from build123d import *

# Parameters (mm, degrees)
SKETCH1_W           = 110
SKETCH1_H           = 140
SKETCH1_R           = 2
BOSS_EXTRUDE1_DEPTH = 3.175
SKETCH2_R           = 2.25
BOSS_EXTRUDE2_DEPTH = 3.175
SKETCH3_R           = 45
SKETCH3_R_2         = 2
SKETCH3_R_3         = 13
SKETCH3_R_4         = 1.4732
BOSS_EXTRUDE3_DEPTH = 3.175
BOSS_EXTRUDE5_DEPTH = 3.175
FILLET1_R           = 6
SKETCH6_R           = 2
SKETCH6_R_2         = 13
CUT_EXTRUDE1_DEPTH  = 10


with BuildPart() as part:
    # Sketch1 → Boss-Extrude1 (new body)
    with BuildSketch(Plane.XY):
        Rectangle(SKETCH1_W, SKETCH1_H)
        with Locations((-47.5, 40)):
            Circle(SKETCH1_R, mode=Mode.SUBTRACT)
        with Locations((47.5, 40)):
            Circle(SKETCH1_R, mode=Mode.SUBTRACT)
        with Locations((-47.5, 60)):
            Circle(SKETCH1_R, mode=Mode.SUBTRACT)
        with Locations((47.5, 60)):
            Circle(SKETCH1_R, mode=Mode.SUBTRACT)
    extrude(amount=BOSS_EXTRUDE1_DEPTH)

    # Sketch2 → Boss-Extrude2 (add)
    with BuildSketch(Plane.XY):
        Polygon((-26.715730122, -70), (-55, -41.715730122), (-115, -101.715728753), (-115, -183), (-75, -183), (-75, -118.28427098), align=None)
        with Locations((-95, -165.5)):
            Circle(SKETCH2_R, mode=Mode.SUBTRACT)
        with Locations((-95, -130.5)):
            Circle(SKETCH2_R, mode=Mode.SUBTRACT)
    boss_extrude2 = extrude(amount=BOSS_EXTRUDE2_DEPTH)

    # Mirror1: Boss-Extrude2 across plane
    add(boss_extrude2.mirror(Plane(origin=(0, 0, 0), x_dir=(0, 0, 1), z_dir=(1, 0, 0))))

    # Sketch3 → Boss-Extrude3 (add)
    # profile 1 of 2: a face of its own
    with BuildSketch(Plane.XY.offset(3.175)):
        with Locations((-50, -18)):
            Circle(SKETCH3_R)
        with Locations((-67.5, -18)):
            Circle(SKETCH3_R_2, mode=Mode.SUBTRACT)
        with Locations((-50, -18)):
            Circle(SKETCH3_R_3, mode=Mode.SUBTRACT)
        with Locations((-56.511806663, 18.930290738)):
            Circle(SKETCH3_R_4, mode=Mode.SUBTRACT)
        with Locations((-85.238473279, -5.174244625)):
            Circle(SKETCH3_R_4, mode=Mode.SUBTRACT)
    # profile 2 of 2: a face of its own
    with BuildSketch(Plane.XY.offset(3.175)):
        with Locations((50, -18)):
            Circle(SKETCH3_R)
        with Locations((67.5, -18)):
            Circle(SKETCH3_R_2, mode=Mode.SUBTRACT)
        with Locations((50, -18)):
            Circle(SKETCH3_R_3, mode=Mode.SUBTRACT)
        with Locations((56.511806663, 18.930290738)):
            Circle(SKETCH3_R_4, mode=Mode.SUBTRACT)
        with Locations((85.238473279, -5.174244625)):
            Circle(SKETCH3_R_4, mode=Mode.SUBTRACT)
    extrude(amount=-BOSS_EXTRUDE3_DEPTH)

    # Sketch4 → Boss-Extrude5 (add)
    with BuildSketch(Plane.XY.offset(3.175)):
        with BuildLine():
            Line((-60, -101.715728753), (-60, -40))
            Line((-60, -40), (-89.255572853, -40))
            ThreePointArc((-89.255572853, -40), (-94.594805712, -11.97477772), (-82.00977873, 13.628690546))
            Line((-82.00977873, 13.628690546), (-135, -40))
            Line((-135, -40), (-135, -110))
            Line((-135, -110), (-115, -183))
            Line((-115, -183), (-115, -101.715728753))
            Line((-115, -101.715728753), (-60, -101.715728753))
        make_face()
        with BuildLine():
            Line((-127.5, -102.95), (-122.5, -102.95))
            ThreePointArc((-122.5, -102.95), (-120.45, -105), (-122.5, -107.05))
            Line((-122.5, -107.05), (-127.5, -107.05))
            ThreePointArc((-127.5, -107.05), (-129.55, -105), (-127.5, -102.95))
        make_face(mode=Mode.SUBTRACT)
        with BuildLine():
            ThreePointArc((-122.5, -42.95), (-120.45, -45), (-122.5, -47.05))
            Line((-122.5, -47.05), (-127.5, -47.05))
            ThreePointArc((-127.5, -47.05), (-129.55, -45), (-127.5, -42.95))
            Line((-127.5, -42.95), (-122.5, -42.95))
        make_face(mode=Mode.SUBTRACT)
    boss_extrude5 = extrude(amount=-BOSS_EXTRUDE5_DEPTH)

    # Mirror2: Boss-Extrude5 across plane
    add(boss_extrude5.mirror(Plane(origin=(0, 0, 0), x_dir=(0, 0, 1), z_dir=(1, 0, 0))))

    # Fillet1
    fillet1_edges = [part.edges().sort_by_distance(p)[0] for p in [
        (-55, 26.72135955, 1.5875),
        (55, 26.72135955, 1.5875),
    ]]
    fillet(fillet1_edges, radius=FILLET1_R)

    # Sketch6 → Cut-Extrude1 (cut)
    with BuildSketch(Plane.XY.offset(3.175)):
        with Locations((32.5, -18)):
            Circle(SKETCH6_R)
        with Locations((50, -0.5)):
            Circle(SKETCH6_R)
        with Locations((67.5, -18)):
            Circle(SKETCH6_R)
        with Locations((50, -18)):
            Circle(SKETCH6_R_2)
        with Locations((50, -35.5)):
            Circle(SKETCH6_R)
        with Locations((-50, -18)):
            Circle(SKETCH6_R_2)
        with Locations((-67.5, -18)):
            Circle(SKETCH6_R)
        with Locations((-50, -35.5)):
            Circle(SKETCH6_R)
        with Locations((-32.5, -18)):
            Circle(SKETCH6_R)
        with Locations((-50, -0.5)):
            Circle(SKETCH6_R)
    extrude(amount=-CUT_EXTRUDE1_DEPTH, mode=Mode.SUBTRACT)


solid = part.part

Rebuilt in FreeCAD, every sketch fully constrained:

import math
import FreeCAD as App
import Part
import Sketcher
Q = App.Units.Quantity


def edges_at(feature, points):
    """Names of the edges that pass closest to the given points."""
    edges = feature.Shape.Edges
    near = lambda p: min(range(len(edges)), key=lambda i: edges[i].distToShape(Part.Vertex(*p))[0])
    return sorted({f"Edge{near(p) + 1}" for p in points})


def add_polygon(sketch, points):
    """Adds a closed chain of lines whose ends are joined by coincident constraints."""
    first, n = sketch.GeometryCount, len(points)
    for a, b in zip(points, points[1:] + points[:1]):
        sketch.addGeometry(Part.LineSegment(App.Vector(*a, 0), App.Vector(*b, 0)), False)
    for i in range(n):
        sketch.addConstraint(Sketcher.Constraint("Coincident", first + i, 2, first + (i + 1) % n, 1))

doc = App.newDocument("Part")
body = doc.addObject("PartDesign::Body", "Body")

# Sketch on XY plane
sketch1 = body.newObject("Sketcher::SketchObject", "Sketch")
sketch1.AttachmentSupport = (doc.getObject("XY_Plane"), [""])
sketch1.MapMode = "FlatFace"
add_polygon(sketch1, [(-55, 70), (-55, -70), (55, -70), (55, 70)])  # lines 0-3
sketch1.addGeometry(Part.Circle(App.Vector(-47.5, 40, 0), App.Vector(0, 0, 1), 2), False)  # 4
sketch1.addGeometry(Part.Circle(App.Vector(47.5, 40, 0), App.Vector(0, 0, 1), 2), False)  # 5
sketch1.addGeometry(Part.Circle(App.Vector(-47.5, 60, 0), App.Vector(0, 0, 1), 2), False)  # 6
sketch1.addGeometry(Part.Circle(App.Vector(47.5, 60, 0), App.Vector(0, 0, 1), 2), False)  # 7
sketch1.addConstraint([
    Sketcher.Constraint("Vertical", 0),
    Sketcher.Constraint("Horizontal", 1),
    Sketcher.Constraint("Vertical", 2),
    Sketcher.Constraint("Horizontal", 3),
    Sketcher.Constraint("Equal", 4, 5),
    Sketcher.Constraint("Equal", 5, 6),
    Sketcher.Constraint("Equal", 6, 7),
    Sketcher.Constraint("Symmetric", 0, 2, 2, 2, -1, 1),
    Sketcher.Constraint("Symmetric", 4, 3, 5, 3, -2),
    Sketcher.Constraint("Symmetric", 6, 3, 7, 3, -2),
    Sketcher.Constraint("Vertical", 4, 3, 6, 3),
    Sketcher.Constraint("Diameter", 4, 4.0),
    Sketcher.Constraint("DistanceX", 1, 1, 1, 2, 110.0),
    Sketcher.Constraint("DistanceY", 0, 2, 0, 1, 140.0),
    Sketcher.Constraint("DistanceY", -1, 1, 4, 3, 40.0),
    Sketcher.Constraint("DistanceY", -1, 1, 6, 3, 60.0),
    Sketcher.Constraint("DistanceX", 4, 3, 5, 3, 95.0),
])
pad1 = body.newObject("PartDesign::Pad", "Pad")
pad1.Profile = sketch1
pad1.Length = 3.175

# Sketch on XY plane
sketch2 = body.newObject("Sketcher::SketchObject", "Sketch001")
sketch2.AttachmentSupport = (doc.getObject("XY_Plane"), [""])
sketch2.MapMode = "FlatFace"
add_polygon(sketch2, [(-26.7, -70), (-55, -41.7), (-115, -101.7), (-115, -183), (-75, -183), (-75, -118.3)])  # lines 0-5
sketch2.addGeometry(Part.Circle(App.Vector(-95, -165.5, 0), App.Vector(0, 0, 1), 2.2), False)  # 6
sketch2.addGeometry(Part.Circle(App.Vector(-95, -130.5, 0), App.Vector(0, 0, 1), 2.2), False)  # 7
sketch2.addConstraint([
    Sketcher.Constraint("Vertical", 2),
    Sketcher.Constraint("Horizontal", 3),
    Sketcher.Constraint("Vertical", 4),
    Sketcher.Constraint("Equal", 6, 7),
    Sketcher.Constraint("Perpendicular", 0, 1),
    Sketcher.Constraint("Parallel", 1, 5),
    Sketcher.Constraint("Vertical", 6, 3, 7, 3),
    Sketcher.Constraint("Diameter", 6, 4.5),
    Sketcher.Constraint("DistanceX", 3, 1, 3, 2, 40.0),
    Sketcher.Constraint("Angle", 0, Q("135 deg")),
    Sketcher.Constraint("Distance", 0, 39.999998),
    Sketcher.Constraint("DistanceX", 6, 3, -1, 1, 95.0),
    Sketcher.Constraint("DistanceX", 0, 2, -1, 1, 55.0),
    Sketcher.Constraint("DistanceX", 1, 2, -1, 1, 115.0),
    Sketcher.Constraint("DistanceY", 2, 2, -1, 1, 183.0),
    Sketcher.Constraint("DistanceY", 5, 2, -1, 1, 70.0),
    Sketcher.Constraint("DistanceY", 6, 3, 7, 3, 35.0),
    Sketcher.Constraint("DistanceY", 6, 3, -1, 1, 165.5),
])
pad2 = body.newObject("PartDesign::Pad", "Pad001")
pad2.Profile = sketch2
pad2.Length = 3.175
doc.recompute()

mirrored = body.newObject("PartDesign::Mirrored", "Mirrored")
mirrored.Originals = [pad2]
mirrored.MirrorPlane = (doc.getObject("YZ_Plane"), [""])
body.Tip = mirrored

# Sketch on XY plane
sketch3 = body.newObject("Sketcher::SketchObject", "Sketch002")
sketch3.AttachmentSupport = (doc.getObject("XY_Plane"), [""])
sketch3.MapMode = "FlatFace"
sketch3.AttachmentOffset = App.Placement(App.Vector(0, 0, 3.175), App.Rotation())
sketch3.addGeometry([
    Part.Circle(App.Vector(-50, -18, 0), App.Vector(0, 0, 1), 45),  # 0
    Part.Circle(App.Vector(-67.5, -18, 0), App.Vector(0, 0, 1), 2),  # 1
    Part.Circle(App.Vector(-50, -18, 0), App.Vector(0, 0, 1), 13),  # 2
    Part.Circle(App.Vector(-85.2, -5.2, 0), App.Vector(0, 0, 1), 1.5),  # 3
    Part.Circle(App.Vector(-56.5, 18.9, 0), App.Vector(0, 0, 1), 1.5),  # 4
    Part.Circle(App.Vector(50, -18, 0), App.Vector(0, 0, 1), 45),  # 5
    Part.Circle(App.Vector(50, -18, 0), App.Vector(0, 0, 1), 13),  # 6
    Part.Circle(App.Vector(67.5, -18, 0), App.Vector(0, 0, 1), 2),  # 7
    Part.Circle(App.Vector(56.5, 18.9, 0), App.Vector(0, 0, 1), 1.5),  # 8
    Part.Circle(App.Vector(85.2, -5.2, 0), App.Vector(0, 0, 1), 1.5),  # 9
], False)
sketch3.addConstraint([
    Sketcher.Constraint("Coincident", 2, 3, 0, 3),
    Sketcher.Constraint("Coincident", 6, 3, 5, 3),
    Sketcher.Constraint("Equal", 3, 4),
    Sketcher.Constraint("Equal", 0, 5),
    Sketcher.Constraint("Equal", 2, 6),
    Sketcher.Constraint("Equal", 1, 7),
    Sketcher.Constraint("Equal", 4, 8),
    Sketcher.Constraint("Equal", 8, 9),
    Sketcher.Constraint("Symmetric", 0, 3, 5, 3, -2),
    Sketcher.Constraint("Symmetric", 1, 3, 7, 3, -2),
    Sketcher.Constraint("Symmetric", 4, 3, 8, 3, -2),
    Sketcher.Constraint("Symmetric", 3, 3, 9, 3, -2),
    Sketcher.Constraint("Horizontal", 0, 3, 1, 3),
    Sketcher.Constraint("Diameter", 0, 90.0),
    Sketcher.Constraint("Diameter", 1, 4.0),
    Sketcher.Constraint("Diameter", 2, 26.0),
    Sketcher.Constraint("DistanceX", 0, 3, -1, 1, 50.0),
    Sketcher.Constraint("DistanceY", 0, 3, -1, 1, 18.0),
    Sketcher.Constraint("Diameter", 3, 2.9464),
    Sketcher.Constraint("DistanceX", 1, 3, -1, 1, 67.5),
    Sketcher.Constraint("DistanceY", -1, 1, 4, 3, 18.930291),
    Sketcher.Constraint("DistanceX", 3, 3, -1, 1, 85.238473),
    Sketcher.Constraint("DistanceY", 3, 3, -1, 1, 5.174245),
    Sketcher.Constraint("DistanceX", 4, 3, -1, 1, 56.511807),
])
pad3 = body.newObject("PartDesign::Pad", "Pad002")
pad3.Profile = sketch3
pad3.Length = 3.175
pad3.Reversed = True

# Sketch on XY plane
sketch4 = body.newObject("Sketcher::SketchObject", "Sketch003")
sketch4.AttachmentSupport = (doc.getObject("XY_Plane"), [""])
sketch4.MapMode = "FlatFace"
sketch4.AttachmentOffset = App.Placement(App.Vector(0, 0, 3.175), App.Rotation())
sketch4.addGeometry([
    Part.LineSegment(App.Vector(-60, -101.7, 0), App.Vector(-60, -40, 0)),  # 0
    Part.LineSegment(App.Vector(-60, -40, 0), App.Vector(-89.3, -40, 0)),  # 1
    Part.ArcOfCircle(Part.Circle(App.Vector(-50, -18, 0), App.Vector(0, 0, 1), 45), math.radians(135), math.radians(209)),  # 2
    Part.LineSegment(App.Vector(-82, 13.6, 0), App.Vector(-135, -40, 0)),  # 3
    Part.LineSegment(App.Vector(-135, -40, 0), App.Vector(-135, -110, 0)),  # 4
    Part.LineSegment(App.Vector(-135, -110, 0), App.Vector(-115, -183, 0)),  # 5
    Part.LineSegment(App.Vector(-115, -183, 0), App.Vector(-115, -101.7, 0)),  # 6
    Part.LineSegment(App.Vector(-115, -101.7, 0), App.Vector(-60, -101.7, 0)),  # 7
    Part.ArcOfCircle(Part.Circle(App.Vector(-127.5, -105, 0), App.Vector(0, 0, 1), 2), math.radians(90), math.radians(270)),  # 8
    Part.LineSegment(App.Vector(-127.5, -103, 0), App.Vector(-122.5, -103, 0)),  # 9
    Part.ArcOfCircle(Part.Circle(App.Vector(-122.5, -105, 0), App.Vector(0, 0, 1), 2), math.radians(-90), math.radians(90)),  # 10
    Part.LineSegment(App.Vector(-122.5, -107, 0), App.Vector(-127.5, -107, 0)),  # 11
    Part.LineSegment(App.Vector(-127.5, -43, 0), App.Vector(-122.5, -43, 0)),  # 12
    Part.ArcOfCircle(Part.Circle(App.Vector(-122.5, -45, 0), App.Vector(0, 0, 1), 2), math.radians(-90), math.radians(90)),  # 13
    Part.LineSegment(App.Vector(-122.5, -47, 0), App.Vector(-127.5, -47, 0)),  # 14
    Part.ArcOfCircle(Part.Circle(App.Vector(-127.5, -45, 0), App.Vector(0, 0, 1), 2), math.radians(90), math.radians(270)),  # 15
], False)
sketch4.addConstraint([
    Sketcher.Constraint("Coincident", 0, 2, 1, 1),
    Sketcher.Constraint("Coincident", 1, 2, 2, 2),
    Sketcher.Constraint("Tangent", 2, 1, 3, 1),
    Sketcher.Constraint("Coincident", 3, 2, 4, 1),
    Sketcher.Constraint("Coincident", 4, 2, 5, 1),
    Sketcher.Constraint("Coincident", 5, 2, 6, 1),
    Sketcher.Constraint("Coincident", 6, 2, 7, 1),
    Sketcher.Constraint("Coincident", 7, 2, 0, 1),
    Sketcher.Constraint("Tangent", 8, 1, 9, 1),
    Sketcher.Constraint("Tangent", 9, 2, 10, 2),
    Sketcher.Constraint("Tangent", 10, 1, 11, 1),
    Sketcher.Constraint("Tangent", 11, 2, 8, 2),
    Sketcher.Constraint("Tangent", 12, 2, 13, 2),
    Sketcher.Constraint("Tangent", 13, 1, 14, 1),
    Sketcher.Constraint("Tangent", 14, 2, 15, 2),
    Sketcher.Constraint("Tangent", 15, 1, 12, 1),
    Sketcher.Constraint("Vertical", 0),
    Sketcher.Constraint("Horizontal", 1),
    Sketcher.Constraint("Vertical", 4),
    Sketcher.Constraint("Vertical", 6),
    Sketcher.Constraint("Horizontal", 7),
    Sketcher.Constraint("Horizontal", 9),
    Sketcher.Constraint("Horizontal", 11),
    Sketcher.Constraint("Horizontal", 12),
    Sketcher.Constraint("Horizontal", 14),
    Sketcher.Constraint("Equal", 10, 13),
    Sketcher.Constraint("Horizontal", 1, 2, 3, 2),
    Sketcher.Constraint("Vertical", 10, 3, 13, 3),
    Sketcher.Constraint("Vertical", 8, 3, 15, 3),
    Sketcher.Constraint("Radius", 2, 45.0),
    Sketcher.Constraint("DistanceX", 7, 1, 7, 2, 55.0),
    Sketcher.Constraint("DistanceX", 9, 1, 9, 2, 5.0),
    Sketcher.Constraint("DistanceY", 4, 2, 4, 1, 70.0),
    Sketcher.Constraint("Radius", 8, 2.05),
    Sketcher.Constraint("DistanceX", 2, 3, -1, 1, 50.0),
    Sketcher.Constraint("DistanceY", 2, 3, -1, 1, 18.0),
    Sketcher.Constraint("DistanceY", 8, 3, -1, 1, 105.0),
    Sketcher.Constraint("DistanceY", 13, 3, -1, 1, 45.0),
    Sketcher.Constraint("DistanceX", 0, 2, -1, 1, 60.0),
    Sketcher.Constraint("DistanceY", 0, 2, -1, 1, 40.0),
    Sketcher.Constraint("DistanceX", 3, 2, -1, 1, 135.0),
    Sketcher.Constraint("DistanceY", 5, 2, -1, 1, 183.0),
    Sketcher.Constraint("DistanceX", 8, 3, -1, 1, 127.5),
    Sketcher.Constraint("DistanceY", 0, 1, 0, 2, 61.715729),
])
pad4 = body.newObject("PartDesign::Pad", "Pad003")
pad4.Profile = sketch4
pad4.Length = 3.175
pad4.Reversed = True
doc.recompute()

mirrored2 = body.newObject("PartDesign::Mirrored", "Mirrored001")
mirrored2.Originals = [pad4]
mirrored2.MirrorPlane = (doc.getObject("YZ_Plane"), [""])
body.Tip = mirrored2
doc.recompute()

fillet = body.newObject("PartDesign::Fillet", "Fillet")
fillet.Base = (mirrored2, edges_at(mirrored2, [(-55, 26.721, 1.587), (55, 26.721, 1.587)]))
fillet.Radius = 6

# Sketch on XY plane
sketch5 = body.newObject("Sketcher::SketchObject", "Sketch004")
sketch5.AttachmentSupport = (doc.getObject("XY_Plane"), [""])
sketch5.MapMode = "FlatFace"
sketch5.AttachmentOffset = App.Placement(App.Vector(0, 0, 3.175), App.Rotation())
sketch5.addGeometry([
    Part.Circle(App.Vector(32.5, -18, 0), App.Vector(0, 0, 1), 2),  # 0
    Part.Circle(App.Vector(50, -0.5, 0), App.Vector(0, 0, 1), 2),  # 1
    Part.Circle(App.Vector(67.5, -18, 0), App.Vector(0, 0, 1), 2),  # 2
    Part.Circle(App.Vector(50, -18, 0), App.Vector(0, 0, 1), 13),  # 3
    Part.Circle(App.Vector(50, -35.5, 0), App.Vector(0, 0, 1), 2),  # 4
    Part.Circle(App.Vector(-50, -18, 0), App.Vector(0, 0, 1), 13),  # 5
    Part.Circle(App.Vector(-67.5, -18, 0), App.Vector(0, 0, 1), 2),  # 6
    Part.Circle(App.Vector(-50, -35.5, 0), App.Vector(0, 0, 1), 2),  # 7
    Part.Circle(App.Vector(-32.5, -18, 0), App.Vector(0, 0, 1), 2),  # 8
    Part.Circle(App.Vector(-50, -0.5, 0), App.Vector(0, 0, 1), 2),  # 9
], False)
sketch5.addConstraint([
    Sketcher.Constraint("Equal", 0, 1),
    Sketcher.Constraint("Equal", 1, 2),
    Sketcher.Constraint("Equal", 2, 4),
    Sketcher.Constraint("Equal", 3, 5),
    Sketcher.Constraint("Equal", 4, 6),
    Sketcher.Constraint("Equal", 6, 7),
    Sketcher.Constraint("Equal", 7, 8),
    Sketcher.Constraint("Equal", 8, 9),
    Sketcher.Constraint("Symmetric", 3, 3, 5, 3, -2),
    Sketcher.Constraint("Symmetric", 2, 3, 6, 3, -2),
    Sketcher.Constraint("Symmetric", 4, 3, 7, 3, -2),
    Sketcher.Constraint("Symmetric", 0, 3, 8, 3, -2),
    Sketcher.Constraint("Symmetric", 1, 3, 9, 3, -2),
    Sketcher.Constraint("Horizontal", 0, 3, 2, 3),
    Sketcher.Constraint("Horizontal", 2, 3, 3, 3),
    Sketcher.Constraint("Vertical", 1, 3, 3, 3),
    Sketcher.Constraint("Vertical", 3, 3, 4, 3),
    Sketcher.Constraint("Diameter", 0, 4.0),
    Sketcher.Constraint("Diameter", 3, 26.0),
    Sketcher.Constraint("DistanceY", 0, 3, -1, 1, 18.0),
    Sketcher.Constraint("DistanceX", -1, 1, 1, 3, 50.0),
    Sketcher.Constraint("DistanceX", 0, 3, 2, 3, 35.0),
    Sketcher.Constraint("DistanceY", 4, 3, 1, 3, 35.0),
    Sketcher.Constraint("DistanceX", 6, 3, 0, 3, 100.0),
    Sketcher.Constraint("DistanceY", 1, 3, -1, 1, 0.5),
])
pocket1 = body.newObject("PartDesign::Pocket", "Pocket")
pocket1.Profile = sketch5
pocket1.Length = 10

doc.recompute()
